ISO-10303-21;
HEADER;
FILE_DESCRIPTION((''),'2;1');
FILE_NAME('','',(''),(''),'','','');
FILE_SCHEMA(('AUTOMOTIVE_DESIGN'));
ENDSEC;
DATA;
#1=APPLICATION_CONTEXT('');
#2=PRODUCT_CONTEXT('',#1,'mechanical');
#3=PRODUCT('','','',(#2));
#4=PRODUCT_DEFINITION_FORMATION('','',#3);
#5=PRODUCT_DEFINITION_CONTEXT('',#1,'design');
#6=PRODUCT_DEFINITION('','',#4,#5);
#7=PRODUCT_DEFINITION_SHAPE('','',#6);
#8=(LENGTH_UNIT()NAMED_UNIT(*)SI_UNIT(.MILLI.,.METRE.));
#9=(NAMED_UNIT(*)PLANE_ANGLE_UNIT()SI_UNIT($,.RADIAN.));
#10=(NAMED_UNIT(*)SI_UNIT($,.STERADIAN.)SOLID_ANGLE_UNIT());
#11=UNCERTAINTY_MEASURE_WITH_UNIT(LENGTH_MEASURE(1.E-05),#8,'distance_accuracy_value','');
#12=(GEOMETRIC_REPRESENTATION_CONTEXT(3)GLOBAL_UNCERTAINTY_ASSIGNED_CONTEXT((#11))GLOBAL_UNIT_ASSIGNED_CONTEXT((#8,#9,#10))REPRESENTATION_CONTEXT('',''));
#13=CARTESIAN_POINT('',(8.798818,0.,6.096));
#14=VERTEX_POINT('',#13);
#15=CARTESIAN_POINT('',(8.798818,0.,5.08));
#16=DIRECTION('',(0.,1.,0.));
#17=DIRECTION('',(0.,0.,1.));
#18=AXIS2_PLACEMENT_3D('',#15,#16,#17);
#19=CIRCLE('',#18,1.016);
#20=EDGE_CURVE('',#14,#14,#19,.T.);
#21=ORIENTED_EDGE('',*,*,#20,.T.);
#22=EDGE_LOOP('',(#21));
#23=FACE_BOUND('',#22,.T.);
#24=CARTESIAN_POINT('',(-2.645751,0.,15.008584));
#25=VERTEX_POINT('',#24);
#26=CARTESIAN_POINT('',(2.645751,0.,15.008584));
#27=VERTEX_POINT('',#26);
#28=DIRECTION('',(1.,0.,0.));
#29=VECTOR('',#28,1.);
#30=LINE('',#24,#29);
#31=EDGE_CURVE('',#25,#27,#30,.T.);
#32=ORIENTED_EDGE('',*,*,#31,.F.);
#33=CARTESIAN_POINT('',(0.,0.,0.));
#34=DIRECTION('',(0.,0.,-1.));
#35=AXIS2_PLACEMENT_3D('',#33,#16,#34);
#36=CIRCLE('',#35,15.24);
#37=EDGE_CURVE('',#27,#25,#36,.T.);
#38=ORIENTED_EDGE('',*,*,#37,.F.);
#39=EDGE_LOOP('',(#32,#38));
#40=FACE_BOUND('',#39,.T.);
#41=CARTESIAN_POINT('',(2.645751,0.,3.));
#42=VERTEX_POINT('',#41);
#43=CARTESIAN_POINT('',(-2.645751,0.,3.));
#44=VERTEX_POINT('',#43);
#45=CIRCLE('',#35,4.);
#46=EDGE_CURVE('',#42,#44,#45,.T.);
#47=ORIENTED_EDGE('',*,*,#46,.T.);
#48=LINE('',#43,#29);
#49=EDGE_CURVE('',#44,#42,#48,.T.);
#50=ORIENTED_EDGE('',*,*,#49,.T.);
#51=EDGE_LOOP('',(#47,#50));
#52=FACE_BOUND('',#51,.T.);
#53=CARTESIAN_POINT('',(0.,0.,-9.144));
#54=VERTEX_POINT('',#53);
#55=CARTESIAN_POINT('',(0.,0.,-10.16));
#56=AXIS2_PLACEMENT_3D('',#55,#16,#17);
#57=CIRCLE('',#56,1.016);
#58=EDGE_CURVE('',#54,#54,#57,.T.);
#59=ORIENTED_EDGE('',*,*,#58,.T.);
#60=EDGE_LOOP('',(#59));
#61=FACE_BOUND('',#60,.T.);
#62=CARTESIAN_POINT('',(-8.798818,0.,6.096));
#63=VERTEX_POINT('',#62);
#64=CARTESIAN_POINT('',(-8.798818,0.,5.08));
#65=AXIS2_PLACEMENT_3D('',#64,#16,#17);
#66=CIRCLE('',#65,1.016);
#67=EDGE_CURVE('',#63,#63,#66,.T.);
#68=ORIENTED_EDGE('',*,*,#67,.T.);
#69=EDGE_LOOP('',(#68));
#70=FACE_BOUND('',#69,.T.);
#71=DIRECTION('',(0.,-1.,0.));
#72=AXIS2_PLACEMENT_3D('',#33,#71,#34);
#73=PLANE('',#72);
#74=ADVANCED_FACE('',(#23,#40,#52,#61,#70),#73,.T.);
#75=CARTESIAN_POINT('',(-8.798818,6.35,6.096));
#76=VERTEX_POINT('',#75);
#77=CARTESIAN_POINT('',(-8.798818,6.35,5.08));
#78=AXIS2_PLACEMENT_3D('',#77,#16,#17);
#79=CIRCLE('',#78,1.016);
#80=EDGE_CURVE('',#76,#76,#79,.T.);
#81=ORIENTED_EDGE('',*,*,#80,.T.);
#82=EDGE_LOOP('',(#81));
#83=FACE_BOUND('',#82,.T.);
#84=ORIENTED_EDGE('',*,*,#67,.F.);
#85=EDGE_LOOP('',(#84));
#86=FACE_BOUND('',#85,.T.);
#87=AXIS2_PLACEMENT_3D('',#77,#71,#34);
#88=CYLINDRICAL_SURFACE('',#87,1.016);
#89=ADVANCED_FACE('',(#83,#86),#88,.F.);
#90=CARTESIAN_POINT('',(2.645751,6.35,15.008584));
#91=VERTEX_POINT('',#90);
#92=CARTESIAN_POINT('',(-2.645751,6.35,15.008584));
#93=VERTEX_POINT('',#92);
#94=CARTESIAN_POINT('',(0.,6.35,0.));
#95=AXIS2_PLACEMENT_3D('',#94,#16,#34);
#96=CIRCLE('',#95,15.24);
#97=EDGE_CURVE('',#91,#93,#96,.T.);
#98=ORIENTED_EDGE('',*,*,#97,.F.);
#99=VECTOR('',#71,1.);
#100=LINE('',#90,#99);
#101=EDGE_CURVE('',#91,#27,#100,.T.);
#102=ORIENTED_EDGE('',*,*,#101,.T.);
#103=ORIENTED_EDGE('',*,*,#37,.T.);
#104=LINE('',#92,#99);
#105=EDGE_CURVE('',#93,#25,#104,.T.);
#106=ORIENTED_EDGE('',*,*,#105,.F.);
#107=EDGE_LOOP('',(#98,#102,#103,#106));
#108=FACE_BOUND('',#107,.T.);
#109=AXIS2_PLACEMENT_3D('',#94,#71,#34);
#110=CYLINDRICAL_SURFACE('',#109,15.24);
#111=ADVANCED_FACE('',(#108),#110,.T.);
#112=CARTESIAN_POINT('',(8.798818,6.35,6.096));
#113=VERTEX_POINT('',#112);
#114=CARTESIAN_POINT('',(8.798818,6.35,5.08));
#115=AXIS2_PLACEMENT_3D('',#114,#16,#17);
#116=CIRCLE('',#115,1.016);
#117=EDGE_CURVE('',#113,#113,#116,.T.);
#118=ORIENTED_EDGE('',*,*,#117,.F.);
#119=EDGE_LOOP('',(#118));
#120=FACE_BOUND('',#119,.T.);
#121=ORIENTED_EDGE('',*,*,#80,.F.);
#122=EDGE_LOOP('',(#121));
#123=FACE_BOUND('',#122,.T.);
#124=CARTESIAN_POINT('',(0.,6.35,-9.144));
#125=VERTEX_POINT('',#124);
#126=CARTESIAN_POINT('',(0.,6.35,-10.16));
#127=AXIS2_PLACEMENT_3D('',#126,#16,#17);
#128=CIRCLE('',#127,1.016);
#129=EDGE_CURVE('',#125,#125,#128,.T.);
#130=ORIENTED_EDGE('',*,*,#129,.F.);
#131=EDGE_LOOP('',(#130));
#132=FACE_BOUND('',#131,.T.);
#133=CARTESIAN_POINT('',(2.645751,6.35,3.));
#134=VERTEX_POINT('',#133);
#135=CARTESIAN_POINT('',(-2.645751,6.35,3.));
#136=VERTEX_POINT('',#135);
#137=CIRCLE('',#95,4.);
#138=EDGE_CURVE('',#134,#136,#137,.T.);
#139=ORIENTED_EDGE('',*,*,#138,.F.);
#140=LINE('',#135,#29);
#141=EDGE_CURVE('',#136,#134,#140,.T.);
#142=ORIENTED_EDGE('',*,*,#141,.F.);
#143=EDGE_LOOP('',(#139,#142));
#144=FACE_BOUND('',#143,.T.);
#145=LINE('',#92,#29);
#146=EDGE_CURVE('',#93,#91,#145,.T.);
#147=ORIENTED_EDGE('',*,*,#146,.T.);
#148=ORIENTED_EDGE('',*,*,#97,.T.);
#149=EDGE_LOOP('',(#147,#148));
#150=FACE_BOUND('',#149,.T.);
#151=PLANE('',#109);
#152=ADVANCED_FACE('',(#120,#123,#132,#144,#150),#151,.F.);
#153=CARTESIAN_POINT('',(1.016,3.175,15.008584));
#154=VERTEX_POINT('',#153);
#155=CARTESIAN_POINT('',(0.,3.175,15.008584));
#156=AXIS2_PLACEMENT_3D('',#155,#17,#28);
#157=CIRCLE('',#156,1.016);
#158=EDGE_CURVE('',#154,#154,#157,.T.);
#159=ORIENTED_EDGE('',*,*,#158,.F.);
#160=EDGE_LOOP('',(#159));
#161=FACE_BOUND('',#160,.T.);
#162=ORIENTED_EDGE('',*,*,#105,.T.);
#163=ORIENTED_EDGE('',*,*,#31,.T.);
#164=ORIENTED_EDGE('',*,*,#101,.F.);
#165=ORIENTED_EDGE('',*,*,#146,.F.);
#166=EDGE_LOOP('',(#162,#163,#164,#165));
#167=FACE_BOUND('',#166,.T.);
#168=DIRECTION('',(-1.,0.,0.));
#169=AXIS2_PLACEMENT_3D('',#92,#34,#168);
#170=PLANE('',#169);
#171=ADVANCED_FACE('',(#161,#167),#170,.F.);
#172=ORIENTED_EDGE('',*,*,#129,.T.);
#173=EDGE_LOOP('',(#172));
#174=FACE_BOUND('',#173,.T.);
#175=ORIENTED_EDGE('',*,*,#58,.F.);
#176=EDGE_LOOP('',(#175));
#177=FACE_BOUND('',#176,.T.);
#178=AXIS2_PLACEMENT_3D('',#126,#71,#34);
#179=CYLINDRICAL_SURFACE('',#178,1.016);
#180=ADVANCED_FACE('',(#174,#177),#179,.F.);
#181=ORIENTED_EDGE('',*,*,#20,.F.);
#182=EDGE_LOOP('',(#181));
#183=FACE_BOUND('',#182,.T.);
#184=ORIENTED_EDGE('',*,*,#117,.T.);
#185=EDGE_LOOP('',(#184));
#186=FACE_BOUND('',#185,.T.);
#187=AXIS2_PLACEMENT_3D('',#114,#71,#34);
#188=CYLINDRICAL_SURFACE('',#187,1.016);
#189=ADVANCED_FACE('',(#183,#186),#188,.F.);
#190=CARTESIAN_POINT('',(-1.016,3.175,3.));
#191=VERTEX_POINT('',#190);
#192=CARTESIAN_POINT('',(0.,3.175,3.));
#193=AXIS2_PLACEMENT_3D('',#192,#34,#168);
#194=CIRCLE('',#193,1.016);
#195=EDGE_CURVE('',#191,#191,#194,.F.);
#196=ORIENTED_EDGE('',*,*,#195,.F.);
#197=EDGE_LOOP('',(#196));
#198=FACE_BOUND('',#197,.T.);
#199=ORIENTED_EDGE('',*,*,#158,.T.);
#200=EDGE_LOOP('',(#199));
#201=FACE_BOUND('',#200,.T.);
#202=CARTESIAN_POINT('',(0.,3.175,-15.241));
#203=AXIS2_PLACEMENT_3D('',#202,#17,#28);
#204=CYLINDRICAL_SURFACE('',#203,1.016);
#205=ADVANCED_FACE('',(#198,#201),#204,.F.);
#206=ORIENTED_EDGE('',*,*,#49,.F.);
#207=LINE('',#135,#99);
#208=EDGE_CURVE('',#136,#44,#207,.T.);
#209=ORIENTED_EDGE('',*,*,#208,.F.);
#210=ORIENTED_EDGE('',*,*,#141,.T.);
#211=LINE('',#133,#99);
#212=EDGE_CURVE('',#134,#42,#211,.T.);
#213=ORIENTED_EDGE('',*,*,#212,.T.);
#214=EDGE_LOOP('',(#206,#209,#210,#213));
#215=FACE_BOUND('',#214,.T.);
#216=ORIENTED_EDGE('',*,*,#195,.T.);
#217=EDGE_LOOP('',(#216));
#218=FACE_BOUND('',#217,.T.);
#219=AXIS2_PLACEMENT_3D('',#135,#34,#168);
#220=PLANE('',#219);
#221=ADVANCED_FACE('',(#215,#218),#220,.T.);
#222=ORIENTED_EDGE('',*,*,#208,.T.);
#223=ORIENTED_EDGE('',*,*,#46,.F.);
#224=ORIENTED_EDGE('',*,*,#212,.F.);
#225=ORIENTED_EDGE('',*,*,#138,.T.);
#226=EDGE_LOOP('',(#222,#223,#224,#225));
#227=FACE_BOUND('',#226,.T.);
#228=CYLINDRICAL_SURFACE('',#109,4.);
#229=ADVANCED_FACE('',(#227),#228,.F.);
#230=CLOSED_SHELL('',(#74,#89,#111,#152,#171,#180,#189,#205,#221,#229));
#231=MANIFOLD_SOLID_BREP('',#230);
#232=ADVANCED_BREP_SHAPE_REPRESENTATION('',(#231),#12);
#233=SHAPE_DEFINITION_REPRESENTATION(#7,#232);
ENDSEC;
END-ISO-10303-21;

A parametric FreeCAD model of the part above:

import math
import FreeCAD as App
import Part
import Sketcher
Q = App.Units.Quantity

doc = App.newDocument("Part")
body = doc.addObject("PartDesign::Body", "Body")

sketch1 = doc.addObject("Sketcher::SketchObject", "Sketch")
body.addObject(sketch1)
sketch1.AttachmentSupport = (doc.XZ_Plane, [""])
sketch1.MapMode = "FlatFace"
sketch1.addGeometry([
    Part.LineSegment(App.Vector(-2.645751, 15.008584, 0), App.Vector(2.645751, 15.008584, 0)),
    Part.ArcOfCircle(Part.Circle(App.Vector(0, 0, 0), App.Vector(0, 0, 1), 15.24), math.radians(99.99753), math.radians(440.00247)),
    Part.Circle(App.Vector(-8.798818, 5.08, 0), App.Vector(0, 0, 1), 1.016),
    Part.Circle(App.Vector(8.798818, 5.08, 0), App.Vector(0, 0, 1), 1.016),
    Part.LineSegment(App.Vector(2.645751, 3, 0), App.Vector(-2.645751, 3, 0)),
    Part.ArcOfCircle(Part.Circle(App.Vector(0, 0, 0), App.Vector(0, 0, 1), 4), math.radians(131.409622), math.radians(408.590378)),
    Part.Circle(App.Vector(0, -10.16, 0), App.Vector(0, 0, 1), 1.016),
], False)
sketch1.addConstraint([
    Sketcher.Constraint("Coincident", 0, 1, 1, 1),
    Sketcher.Constraint("Coincident", 1, 2, 0, 2),
    Sketcher.Constraint("Coincident", 4, 1, 5, 2),
    Sketcher.Constraint("Coincident", 5, 1, 4, 2),
    Sketcher.Constraint("Horizontal", 0),
    Sketcher.Constraint("Horizontal", 4),
    Sketcher.Constraint("Coincident", 1, 3, -1, 1),
    Sketcher.Constraint("Coincident", 5, 3, -1, 1),
    Sketcher.Constraint("Equal", 2, 3),
    Sketcher.Constraint("Equal", 3, 6),
    Sketcher.Constraint("Symmetric", 2, 3, 3, 3, -2),
    Sketcher.Constraint("PointOnObject", 6, 3, -2),
    Sketcher.Constraint("Vertical", 1, 2, 4, 1),
    Sketcher.Constraint("Radius", 1, Q("0.6 in")),
    Sketcher.Constraint("Diameter", 2, Q("0.08 in")),
    Sketcher.Constraint("DistanceY", -1, 1, 2, 3, Q("0.2 in")),
    Sketcher.Constraint("DistanceY", 6, 3, -1, 1, Q("0.4 in")),
    Sketcher.Constraint("Radius", 5, 4.0),
    Sketcher.Constraint("DistanceY", -1, 1, 4, 1, 3.0),
    Sketcher.Constraint("DistanceX", 2, 3, -1, 1, 8.798818),
])
pad1 = doc.addObject("PartDesign::Pad", "Pad")
body.addObject(pad1)
pad1.Profile = sketch1
pad1.Length = Q("0.25 in")
pad1.Reversed = True

sketch2 = doc.addObject("Sketcher::SketchObject", "Sketch001")
body.addObject(sketch2)
sketch2.AttachmentSupport = (doc.XY_Plane, [""])
sketch2.MapMode = "FlatFace"
sketch2.AttachmentOffset = App.Placement(App.Vector(0, 0, 15.008584), App.Rotation())
sketch2.addGeometry(Part.Circle(App.Vector(0, 3.175, 0), App.Vector(0, 0, 1), 1.016), False)
sketch2.addConstraint([
    Sketcher.Constraint("PointOnObject", 0, 3, -2),
    Sketcher.Constraint("Diameter", 0, Q("0.08 in")),
    Sketcher.Constraint("DistanceY", -1, 1, 0, 3, Q("0.125 in")),
])
pocket1 = doc.addObject("PartDesign::Pocket", "Pocket")
body.addObject(pocket1)
pocket1.Profile = sketch2
pocket1.Type = "UpToFirst"

doc.recompute()
